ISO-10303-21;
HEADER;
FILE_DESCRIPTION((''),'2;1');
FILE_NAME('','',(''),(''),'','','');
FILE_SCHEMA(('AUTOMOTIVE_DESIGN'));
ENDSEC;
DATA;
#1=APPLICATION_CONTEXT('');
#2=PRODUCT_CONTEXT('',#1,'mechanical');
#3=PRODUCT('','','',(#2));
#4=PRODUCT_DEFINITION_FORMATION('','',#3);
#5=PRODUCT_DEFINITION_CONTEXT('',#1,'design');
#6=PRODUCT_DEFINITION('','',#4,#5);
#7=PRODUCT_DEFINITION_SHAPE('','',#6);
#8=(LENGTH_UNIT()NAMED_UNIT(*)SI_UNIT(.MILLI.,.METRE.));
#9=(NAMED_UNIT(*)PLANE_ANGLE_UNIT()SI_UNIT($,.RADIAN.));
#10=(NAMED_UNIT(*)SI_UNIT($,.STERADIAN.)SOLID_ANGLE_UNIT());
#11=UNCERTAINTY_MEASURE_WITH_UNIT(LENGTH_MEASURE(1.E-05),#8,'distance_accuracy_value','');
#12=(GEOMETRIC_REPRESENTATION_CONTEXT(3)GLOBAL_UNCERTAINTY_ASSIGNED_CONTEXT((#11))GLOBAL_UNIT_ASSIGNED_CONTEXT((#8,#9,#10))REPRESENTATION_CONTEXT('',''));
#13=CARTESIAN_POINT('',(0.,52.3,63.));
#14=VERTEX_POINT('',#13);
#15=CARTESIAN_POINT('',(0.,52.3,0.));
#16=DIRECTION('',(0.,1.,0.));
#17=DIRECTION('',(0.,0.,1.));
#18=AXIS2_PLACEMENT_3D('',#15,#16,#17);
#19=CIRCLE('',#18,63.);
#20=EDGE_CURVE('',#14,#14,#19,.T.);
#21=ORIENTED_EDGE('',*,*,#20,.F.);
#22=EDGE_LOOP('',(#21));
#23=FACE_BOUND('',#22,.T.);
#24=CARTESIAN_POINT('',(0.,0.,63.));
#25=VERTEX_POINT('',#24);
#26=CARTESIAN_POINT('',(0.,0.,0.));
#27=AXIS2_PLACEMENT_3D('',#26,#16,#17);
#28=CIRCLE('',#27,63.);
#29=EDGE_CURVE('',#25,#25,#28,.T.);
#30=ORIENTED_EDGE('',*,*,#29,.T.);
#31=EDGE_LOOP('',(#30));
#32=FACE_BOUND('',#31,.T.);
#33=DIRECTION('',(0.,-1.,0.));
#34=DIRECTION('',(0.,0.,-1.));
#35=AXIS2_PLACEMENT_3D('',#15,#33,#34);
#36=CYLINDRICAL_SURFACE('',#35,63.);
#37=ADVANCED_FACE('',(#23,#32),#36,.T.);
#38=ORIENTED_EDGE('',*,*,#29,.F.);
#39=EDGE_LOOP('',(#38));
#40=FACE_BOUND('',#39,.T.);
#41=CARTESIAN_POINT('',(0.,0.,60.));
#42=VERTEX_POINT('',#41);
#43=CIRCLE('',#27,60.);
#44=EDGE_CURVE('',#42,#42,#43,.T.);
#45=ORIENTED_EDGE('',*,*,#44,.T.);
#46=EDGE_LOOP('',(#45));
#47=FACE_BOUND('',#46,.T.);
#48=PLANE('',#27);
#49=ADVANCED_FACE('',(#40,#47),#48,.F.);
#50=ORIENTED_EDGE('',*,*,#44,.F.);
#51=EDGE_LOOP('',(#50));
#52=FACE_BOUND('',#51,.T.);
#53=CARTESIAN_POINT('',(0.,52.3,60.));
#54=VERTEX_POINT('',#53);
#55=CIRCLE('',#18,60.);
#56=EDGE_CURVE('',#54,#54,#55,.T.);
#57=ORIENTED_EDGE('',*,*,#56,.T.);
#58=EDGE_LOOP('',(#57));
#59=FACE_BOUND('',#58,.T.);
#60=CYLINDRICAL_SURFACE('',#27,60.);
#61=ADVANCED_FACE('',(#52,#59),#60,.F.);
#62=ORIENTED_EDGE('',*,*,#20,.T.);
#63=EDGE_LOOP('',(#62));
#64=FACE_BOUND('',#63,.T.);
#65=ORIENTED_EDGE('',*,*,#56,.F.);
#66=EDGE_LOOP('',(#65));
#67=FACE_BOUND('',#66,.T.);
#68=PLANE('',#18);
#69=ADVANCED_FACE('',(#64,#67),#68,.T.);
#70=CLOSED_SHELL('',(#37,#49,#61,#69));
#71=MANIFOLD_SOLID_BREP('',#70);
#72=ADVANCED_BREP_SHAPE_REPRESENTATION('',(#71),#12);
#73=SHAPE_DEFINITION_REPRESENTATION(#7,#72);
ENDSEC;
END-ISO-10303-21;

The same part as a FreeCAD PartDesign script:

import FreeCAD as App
import Part
import Sketcher

V = App.Vector

doc = App.newDocument("Part")
body = doc.addObject("PartDesign::Body", "Body")

# Sketch on XZ plane
sketch1 = body.newObject("Sketcher::SketchObject", "Sketch")
sketch1.AttachmentSupport = (doc.getObject("XZ_Plane"), [""])
sketch1.MapMode = "FlatFace"
sketch1.addGeometry(Part.Circle(V(0, 0, 0), V(0, 0, 1), 63), False)
sketch1.addConstraint([
    Sketcher.Constraint("Coincident", 0, 3, -1, 1),
    Sketcher.Constraint("Diameter", 0, 126.0),
])
pad1 = body.newObject("PartDesign::Pad", "Pad")
pad1.Profile = sketch1
pad1.Length = 52.3
pad1.Reversed = True

# Sketch on XZ plane
sketch2 = body.newObject("Sketcher::SketchObject", "Sketch001")
sketch2.AttachmentSupport = (doc.getObject("XZ_Plane"), [""])
sketch2.MapMode = "FlatFace"
sketch2.AttachmentOffset = App.Placement(V(0, 0, -52.3), App.Rotation())
sketch2.addGeometry(Part.Circle(V(0, 0, 0), V(0, 0, 1), 60), False)
sketch2.addConstraint([
    Sketcher.Constraint("Coincident", 0, 3, -1, 1),
    Sketcher.Constraint("Diameter", 0, 120.0),
])
pocket1 = body.newObject("PartDesign::Pocket", "Pocket")
pocket1.Profile = sketch2
pocket1.Length = 52.3
pocket1.Reversed = True

doc.recompute()
